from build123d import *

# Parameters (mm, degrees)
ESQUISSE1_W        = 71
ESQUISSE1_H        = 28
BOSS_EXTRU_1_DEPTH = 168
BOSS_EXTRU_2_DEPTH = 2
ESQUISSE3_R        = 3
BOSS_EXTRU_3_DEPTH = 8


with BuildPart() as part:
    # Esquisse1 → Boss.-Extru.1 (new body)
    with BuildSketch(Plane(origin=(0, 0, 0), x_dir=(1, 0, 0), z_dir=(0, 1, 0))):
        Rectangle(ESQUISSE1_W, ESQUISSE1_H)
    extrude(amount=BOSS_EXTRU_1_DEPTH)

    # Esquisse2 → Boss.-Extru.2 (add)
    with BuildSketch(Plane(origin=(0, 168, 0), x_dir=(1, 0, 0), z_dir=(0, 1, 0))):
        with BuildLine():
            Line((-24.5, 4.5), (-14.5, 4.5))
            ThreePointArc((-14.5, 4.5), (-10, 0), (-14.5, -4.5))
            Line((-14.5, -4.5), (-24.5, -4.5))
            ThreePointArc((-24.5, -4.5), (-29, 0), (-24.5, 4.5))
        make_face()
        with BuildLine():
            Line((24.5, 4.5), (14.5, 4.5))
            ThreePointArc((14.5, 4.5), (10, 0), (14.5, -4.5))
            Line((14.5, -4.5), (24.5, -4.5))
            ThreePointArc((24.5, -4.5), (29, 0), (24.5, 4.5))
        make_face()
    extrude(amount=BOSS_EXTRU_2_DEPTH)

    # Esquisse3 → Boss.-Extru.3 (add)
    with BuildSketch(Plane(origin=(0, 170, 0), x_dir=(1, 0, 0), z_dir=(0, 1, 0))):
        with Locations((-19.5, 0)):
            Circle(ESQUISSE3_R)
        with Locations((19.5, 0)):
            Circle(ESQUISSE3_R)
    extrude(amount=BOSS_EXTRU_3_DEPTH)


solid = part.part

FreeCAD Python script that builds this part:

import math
import FreeCAD as App
import Part
import Sketcher


def add_polygon(sketch, points):
    """Adds a closed chain of lines whose ends are joined by coincident constraints."""
    first, n = sketch.GeometryCount, len(points)
    for a, b in zip(points, points[1:] + points[:1]):
        sketch.addGeometry(Part.LineSegment(App.Vector(*a, 0), App.Vector(*b, 0)), False)
    for i in range(n):
        sketch.addConstraint(Sketcher.Constraint("Coincident", first + i, 2, first + (i + 1) % n, 1))

doc = App.newDocument("Part")
body = doc.addObject("PartDesign::Body", "Body")

# Sketch on XZ plane
sketch1 = doc.addObject("Sketcher::SketchObject", "Sketch")
body.addObject(sketch1)
sketch1.AttachmentSupport = (doc.XZ_Plane, [""])
sketch1.MapMode = "FlatFace"
add_polygon(sketch1, [(-36, -14), (-36, 14), (36, 14), (36, -14)])  # lines 0-3
sketch1.addConstraint([
    Sketcher.Constraint("Vertical", 0),
    Sketcher.Constraint("Horizontal", 1),
    Sketcher.Constraint("Vertical", 2),
    Sketcher.Constraint("Horizontal", 3),
    Sketcher.Constraint("Symmetric", 0, 2, 2, 2, -1, 1),
    Sketcher.Constraint("DistanceX", 1, 1, 1, 2, 71.0),
    Sketcher.Constraint("DistanceY", 0, 1, 0, 2, 28.0),
])
pad1 = doc.addObject("PartDesign::Pad", "Pad")
body.addObject(pad1)
pad1.Profile = sketch1
pad1.Length = 168
pad1.Reversed = True

# Sketch on XZ plane
sketch2 = doc.addObject("Sketcher::SketchObject", "Sketch001")
body.addObject(sketch2)
sketch2.AttachmentSupport = (doc.XZ_Plane, [""])
sketch2.MapMode = "FlatFace"
sketch2.AttachmentOffset = App.Placement(App.Vector(0, 0, -168), App.Rotation())
sketch2.addGeometry([
    Part.LineSegment(App.Vector(-14.5, -4.5, 0), App.Vector(-24.5, -4.5, 0)),  # 0
    Part.ArcOfCircle(Part.Circle(App.Vector(-24.5, 0, 0), App.Vector(0, 0, 1), 4.5), math.radians(90), math.radians(270)),  # 1
    Part.LineSegment(App.Vector(-24.5, 4.5, 0), App.Vector(-14.5, 4.5, 0)),  # 2
    Part.ArcOfCircle(Part.Circle(App.Vector(-14.5, 0, 0), App.Vector(0, 0, 1), 4.5), math.radians(-90), math.radians(90)),  # 3
    Part.LineSegment(App.Vector(24.5, -4.5, 0), App.Vector(14.5, -4.5, 0)),  # 4
    Part.ArcOfCircle(Part.Circle(App.Vector(14.5, 0, 0), App.Vector(0, 0, 1), 4.5), math.radians(90), math.radians(270)),  # 5
    Part.LineSegment(App.Vector(14.5, 4.5, 0), App.Vector(24.5, 4.5, 0)),  # 6
    Part.ArcOfCircle(Part.Circle(App.Vector(24.5, 0, 0), App.Vector(0, 0, 1), 4.5), math.radians(-90), math.radians(90)),  # 7
], False)
sketch2.addConstraint([
    Sketcher.Constraint("Tangent", 0, 2, 1, 2),
    Sketcher.Constraint("Tangent", 1, 1, 2, 1),
    Sketcher.Constraint("Tangent", 2, 2, 3, 2),
    Sketcher.Constraint("Tangent", 3, 1, 0, 1),
    Sketcher.Constraint("Tangent", 4, 2, 5, 2),
    Sketcher.Constraint("Tangent", 5, 1, 6, 1),
    Sketcher.Constraint("Tangent", 6, 2, 7, 2),
    Sketcher.Constraint("Tangent", 7, 1, 4, 1),
    Sketcher.Constraint("Horizontal", 0),
    Sketcher.Constraint("Horizontal", 2),
    Sketcher.Constraint("Horizontal", 4),
    Sketcher.Constraint("Horizontal", 6),
    Sketcher.Constraint("Equal", 3, 5),
    Sketcher.Constraint("Symmetric", 3, 3, 5, 3, -1, 1),
    Sketcher.Constraint("Symmetric", 1, 3, 7, 3, -2),
    Sketcher.Constraint("Radius", 1, 4.5),
    Sketcher.Constraint("DistanceX", 0, 2, 0, 1, 10.0),
    Sketcher.Constraint("DistanceX", 3, 3, 5, 3, 29.0),
])
pad2 = doc.addObject("PartDesign::Pad", "Pad001")
body.addObject(pad2)
pad2.Profile = sketch2
pad2.Length = 2
pad2.Reversed = True

# Sketch on XZ plane
sketch3 = doc.addObject("Sketcher::SketchObject", "Sketch002")
body.addObject(sketch3)
sketch3.AttachmentSupport = (doc.XZ_Plane, [""])
sketch3.MapMode = "FlatFace"
sketch3.AttachmentOffset = App.Placement(App.Vector(0, 0, -170), App.Rotation())
sketch3.addGeometry([
    Part.Circle(App.Vector(-19.5, 0, 0), App.Vector(0, 0, 1), 3),
    Part.Circle(App.Vector(19.5, 0, 0), App.Vector(0, 0, 1), 3),
], False)
sketch3.addConstraint([
    Sketcher.Constraint("Equal", 0, 1),
    Sketcher.Constraint("Symmetric", 0, 3, 1, 3, -1, 1),
    Sketcher.Constraint("PointOnObject", 0, 3, -1),
    Sketcher.Constraint("Diameter", 0, 6.0),
    Sketcher.Constraint("DistanceX", 0, 3, 1, 3, 39.0),
])
pad3 = doc.addObject("PartDesign::Pad", "Pad002")
body.addObject(pad3)
pad3.Profile = sketch3
pad3.Length = 8
pad3.Reversed = True

doc.recompute()
